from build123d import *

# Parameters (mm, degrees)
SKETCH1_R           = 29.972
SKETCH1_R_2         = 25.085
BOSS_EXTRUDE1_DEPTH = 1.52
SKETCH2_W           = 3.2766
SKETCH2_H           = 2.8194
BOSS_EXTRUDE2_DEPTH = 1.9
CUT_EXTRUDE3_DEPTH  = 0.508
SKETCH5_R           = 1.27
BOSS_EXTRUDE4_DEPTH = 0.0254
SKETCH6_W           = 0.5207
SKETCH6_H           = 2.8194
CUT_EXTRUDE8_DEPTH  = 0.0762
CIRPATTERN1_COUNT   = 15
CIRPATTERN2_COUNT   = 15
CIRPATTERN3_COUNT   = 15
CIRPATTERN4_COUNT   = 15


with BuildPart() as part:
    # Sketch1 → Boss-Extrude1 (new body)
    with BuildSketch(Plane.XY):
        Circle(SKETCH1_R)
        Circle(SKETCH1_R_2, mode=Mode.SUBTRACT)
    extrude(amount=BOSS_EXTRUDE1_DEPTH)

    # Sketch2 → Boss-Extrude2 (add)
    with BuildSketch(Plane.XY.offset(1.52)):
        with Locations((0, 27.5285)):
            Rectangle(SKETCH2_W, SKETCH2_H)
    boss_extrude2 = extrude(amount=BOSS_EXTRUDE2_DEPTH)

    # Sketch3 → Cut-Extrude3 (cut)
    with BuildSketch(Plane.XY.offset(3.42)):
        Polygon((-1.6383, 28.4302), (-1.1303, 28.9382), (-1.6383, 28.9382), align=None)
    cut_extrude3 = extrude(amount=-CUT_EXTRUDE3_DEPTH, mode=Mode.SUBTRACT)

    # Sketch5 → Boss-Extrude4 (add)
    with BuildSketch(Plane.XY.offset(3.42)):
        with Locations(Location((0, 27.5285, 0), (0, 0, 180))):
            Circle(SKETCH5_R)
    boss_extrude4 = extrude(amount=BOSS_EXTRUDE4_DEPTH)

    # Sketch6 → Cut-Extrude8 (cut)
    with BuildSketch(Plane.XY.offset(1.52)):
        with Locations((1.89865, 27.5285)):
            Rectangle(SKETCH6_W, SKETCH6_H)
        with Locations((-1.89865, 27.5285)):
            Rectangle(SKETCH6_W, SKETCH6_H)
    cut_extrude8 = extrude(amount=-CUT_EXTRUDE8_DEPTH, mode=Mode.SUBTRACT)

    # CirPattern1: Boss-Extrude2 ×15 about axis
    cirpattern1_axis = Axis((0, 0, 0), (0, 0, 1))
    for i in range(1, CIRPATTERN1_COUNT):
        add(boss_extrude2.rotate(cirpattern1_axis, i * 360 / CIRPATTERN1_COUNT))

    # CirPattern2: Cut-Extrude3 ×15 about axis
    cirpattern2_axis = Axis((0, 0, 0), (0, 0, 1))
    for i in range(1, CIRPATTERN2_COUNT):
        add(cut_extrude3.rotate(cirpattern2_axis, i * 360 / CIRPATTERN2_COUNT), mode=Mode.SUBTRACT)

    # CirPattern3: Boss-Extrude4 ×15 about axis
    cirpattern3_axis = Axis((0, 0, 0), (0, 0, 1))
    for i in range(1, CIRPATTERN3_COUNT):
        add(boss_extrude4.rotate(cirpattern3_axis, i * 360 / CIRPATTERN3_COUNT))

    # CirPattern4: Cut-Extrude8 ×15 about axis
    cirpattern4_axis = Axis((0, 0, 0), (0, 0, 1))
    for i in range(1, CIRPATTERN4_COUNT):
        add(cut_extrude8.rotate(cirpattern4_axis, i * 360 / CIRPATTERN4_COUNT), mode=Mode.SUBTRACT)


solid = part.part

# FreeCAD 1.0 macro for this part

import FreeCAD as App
import Part
import Sketcher

V = App.Vector
Q = App.Units.Quantity

doc = App.newDocument("Part")
params = doc.addObject("Spreadsheet::Sheet", "Params")
for row, (alias, value) in enumerate([
    ("sketch1_diameter", "2.36 in"),
    ("pad1_length", "1.52 mm"),
    ("sketch2_width", "0.129 in"),
    ("sketch2_height", "0.111 in"),
    ("pad2_length", "1.9 mm"),
    ("sketch3_width", "0.02 in"),
    ("pocket1_length", "0.02 in"),
    ("sketch4_diameter", "0.1 in"),
    ("pad3_length", "0.001 in"),
    ("sketch5_height", "0.111 in"),
    ("pocket2_length", "0.003 in"),
], start=1):
    params.set(f"A{row}", alias)
    params.set(f"B{row}", "=" + value)
    params.setAlias(f"B{row}", alias)

body = doc.addObject("PartDesign::Body", "Body")

sketch1 = body.newObject("Sketcher::SketchObject", "Sketch")
sketch1.AttachmentSupport = (doc.getObject("XY_Plane"), [""])
sketch1.MapMode = "FlatFace"
sketch1.addGeometry([
    Part.Circle(V(0, 0, 0), V(0, 0, 1), 29.972),
    Part.Circle(V(0, 0, 0), V(0, 0, 1), 25.085),
], False)
sketch1.addConstraint([
    Sketcher.Constraint("Coincident", 0, 3, -1, 1),
    Sketcher.Constraint("Coincident", 1, 3, -1, 1),
    Sketcher.Constraint("Diameter", 0, Q("2.36 in")),
    Sketcher.Constraint("Diameter", 1, 50.17),
])
sketch1.setExpression("Constraints[2]", "Params.sketch1_diameter")
pad1 = body.newObject("PartDesign::Pad", "Pad")
pad1.Profile = sketch1
pad1.setExpression("Length", "Params.pad1_length")

sketch2 = body.newObject("Sketcher::SketchObject", "Sketch001")
sketch2.AttachmentSupport = (doc.getObject("XY_Plane"), [""])
sketch2.MapMode = "FlatFace"
sketch2.AttachmentOffset = App.Placement(V(0, 0, 1.52), App.Rotation())
sketch2.addGeometry([
    Part.LineSegment(V(-1.6383, 28.9382, 0), V(-1.6383, 26.1188, 0)),
    Part.LineSegment(V(-1.6383, 26.1188, 0), V(1.6383, 26.1188, 0)),
    Part.LineSegment(V(1.6383, 26.1188, 0), V(1.6383, 28.9382, 0)),
    Part.LineSegment(V(1.6383, 28.9382, 0), V(-1.6383, 28.9382, 0)),
], False)
sketch2.addConstraint([
    Sketcher.Constraint("Coincident", 0, 2, 1, 1),
    Sketcher.Constraint("Coincident", 1, 2, 2, 1),
    Sketcher.Constraint("Coincident", 2, 2, 3, 1),
    Sketcher.Constraint("Coincident", 3, 2, 0, 1),
    Sketcher.Constraint("Vertical", 0),
    Sketcher.Constraint("Horizontal", 1),
    Sketcher.Constraint("Vertical", 2),
    Sketcher.Constraint("Horizontal", 3),
    Sketcher.Constraint("DistanceX", 1, 1, 1, 2, Q("0.129 in")),
    Sketcher.Constraint("DistanceY", 0, 2, 0, 1, Q("0.111 in")),
    Sketcher.Constraint("DistanceX", 0, 2, -1, 1, Q("0.0645 in")),
    Sketcher.Constraint("DistanceY", -1, 1, 0, 2, 26.1188),
])
sketch2.setExpression("Constraints[8]", "Params.sketch2_width")
sketch2.setExpression("Constraints[9]", "Params.sketch2_height")
pad2 = body.newObject("PartDesign::Pad", "Pad001")
pad2.Profile = sketch2
pad2.setExpression("Length", "Params.pad2_length")

sketch3 = body.newObject("Sketcher::SketchObject", "Sketch002")
sketch3.AttachmentSupport = (doc.getObject("XY_Plane"), [""])
sketch3.MapMode = "FlatFace"
sketch3.AttachmentOffset = App.Placement(V(0, 0, 3.42), App.Rotation())
sketch3.addGeometry([
    Part.LineSegment(V(-1.6383, 28.4302, 0), V(-1.1303, 28.9382, 0)),
    Part.LineSegment(V(-1.1303, 28.9382, 0), V(-1.6383, 28.9382, 0)),
    Part.LineSegment(V(-1.6383, 28.9382, 0), V(-1.6383, 28.4302, 0)),
], False)
sketch3.addConstraint([
    Sketcher.Constraint("Coincident", 0, 2, 1, 1),
    Sketcher.Constraint("Coincident", 1, 2, 2, 1),
    Sketcher.Constraint("Coincident", 2, 2, 0, 1),
    Sketcher.Constraint("Horizontal", 1),
    Sketcher.Constraint("Vertical", 2),
    Sketcher.Constraint("Equal", 1, 2),
    Sketcher.Constraint("DistanceX", 1, 2, 1, 1, Q("0.02 in")),
    Sketcher.Constraint("DistanceX", 0, 2, -1, 1, Q("0.0445 in")),
    Sketcher.Constraint("DistanceY", -1, 1, 0, 2, 28.9382),
])
sketch3.setExpression("Constraints[6]", "Params.sketch3_width")
pocket1 = body.newObject("PartDesign::Pocket", "Pocket")
pocket1.Profile = sketch3
pocket1.setExpression("Length", "Params.pocket1_length")

sketch4 = body.newObject("Sketcher::SketchObject", "Sketch003")
sketch4.AttachmentSupport = (doc.getObject("XY_Plane"), [""])
sketch4.MapMode = "FlatFace"
sketch4.AttachmentOffset = App.Placement(V(0, 0, 3.42), App.Rotation())
sketch4.addGeometry(Part.Circle(V(0, 27.5285, 0), V(0, 0, 1), 1.27), False)
sketch4.addConstraint([
    Sketcher.Constraint("PointOnObject", 0, 3, -2),
    Sketcher.Constraint("Diameter", 0, Q("0.1 in")),
    Sketcher.Constraint("DistanceY", -1, 1, 0, 3, 27.5285),
])
sketch4.setExpression("Constraints[1]", "Params.sketch4_diameter")
pad3 = body.newObject("PartDesign::Pad", "Pad002")
pad3.Profile = sketch4
pad3.setExpression("Length", "Params.pad3_length")

sketch5 = body.newObject("Sketcher::SketchObject", "Sketch004")
sketch5.AttachmentSupport = (doc.getObject("XY_Plane"), [""])
sketch5.MapMode = "FlatFace"
sketch5.AttachmentOffset = App.Placement(V(0, 0, 1.52), App.Rotation())
sketch5.addGeometry([
    Part.LineSegment(V(1.6383, 28.9382, 0), V(1.6383, 26.1188, 0)),
    Part.LineSegment(V(1.6383, 26.1188, 0), V(2.159, 26.1188, 0)),
    Part.LineSegment(V(2.159, 26.1188, 0), V(2.159, 28.9382, 0)),
    Part.LineSegment(V(2.159, 28.9382, 0), V(1.6383, 28.9382, 0)),
    Part.LineSegment(V(-2.159, 28.9382, 0), V(-2.159, 26.1188, 0)),
    Part.LineSegment(V(-2.159, 26.1188, 0), V(-1.6383, 26.1188, 0)),
    Part.LineSegment(V(-1.6383, 26.1188, 0), V(-1.6383, 28.9382, 0)),
    Part.LineSegment(V(-1.6383, 28.9382, 0), V(-2.159, 28.9382, 0)),
], False)
sketch5.addConstraint([
    Sketcher.Constraint("Coincident", 0, 2, 1, 1),
    Sketcher.Constraint("Coincident", 1, 2, 2, 1),
    Sketcher.Constraint("Coincident", 2, 2, 3, 1),
    Sketcher.Constraint("Coincident", 3, 2, 0, 1),
    Sketcher.Constraint("Coincident", 4, 2, 5, 1),
    Sketcher.Constraint("Coincident", 5, 2, 6, 1),
    Sketcher.Constraint("Coincident", 6, 2, 7, 1),
    Sketcher.Constraint("Coincident", 7, 2, 4, 1),
    Sketcher.Constraint("Vertical", 0),
    Sketcher.Constraint("Horizontal", 1),
    Sketcher.Constraint("Vertical", 2),
    Sketcher.Constraint("Horizontal", 3),
    Sketcher.Constraint("Vertical", 4),
    Sketcher.Constraint("Horizontal", 5),
    Sketcher.Constraint("Vertical", 6),
    Sketcher.Constraint("Horizontal", 7),
    Sketcher.Constraint("Symmetric", 1, 2, 4, 2, -2),
    Sketcher.Constraint("Symmetric", 3, 2, 6, 2, -2),
    Sketcher.Constraint("DistanceY", 0, 2, 0, 1, Q("0.111 in")),
    Sketcher.Constraint("DistanceX", 4, 2, 1, 2, Q("0.17 in")),
    Sketcher.Constraint("DistanceX", 1, 1, 1, 2, Q("0.0205 in")),
    Sketcher.Constraint("DistanceY", -1, 1, 0, 2, 26.1188),
])
sketch5.setExpression("Constraints[18]", "Params.sketch5_height")
pocket2 = body.newObject("PartDesign::Pocket", "Pocket001")
pocket2.Profile = sketch5
pocket2.setExpression("Length", "Params.pocket2_length")
doc.recompute()

polarpattern = body.newObject("PartDesign::PolarPattern", "PolarPattern")
polarpattern.Originals = [pad2]
polarpattern.Axis = (doc.getObject("Z_Axis"), [""])
polarpattern.Angle = 360
polarpattern.Occurrences = 15
body.Tip = polarpattern
doc.recompute()

polarpattern2 = body.newObject("PartDesign::PolarPattern", "PolarPattern001")
polarpattern2.Originals = [pocket1]
polarpattern2.Axis = (doc.getObject("Z_Axis"), [""])
polarpattern2.Angle = 360
polarpattern2.Occurrences = 15
body.Tip = polarpattern2
doc.recompute()

polarpattern3 = body.newObject("PartDesign::PolarPattern", "PolarPattern002")
polarpattern3.Originals = [pad3]
polarpattern3.Axis = (doc.getObject("Z_Axis"), [""])
polarpattern3.Angle = 360
polarpattern3.Occurrences = 15
body.Tip = polarpattern3
doc.recompute()

polarpattern4 = body.newObject("PartDesign::PolarPattern", "PolarPattern003")
polarpattern4.Originals = [pocket2]
polarpattern4.Axis = (doc.getObject("Z_Axis"), [""])
polarpattern4.Angle = 360
polarpattern4.Occurrences = 15
body.Tip = polarpattern4

doc.recompute()
